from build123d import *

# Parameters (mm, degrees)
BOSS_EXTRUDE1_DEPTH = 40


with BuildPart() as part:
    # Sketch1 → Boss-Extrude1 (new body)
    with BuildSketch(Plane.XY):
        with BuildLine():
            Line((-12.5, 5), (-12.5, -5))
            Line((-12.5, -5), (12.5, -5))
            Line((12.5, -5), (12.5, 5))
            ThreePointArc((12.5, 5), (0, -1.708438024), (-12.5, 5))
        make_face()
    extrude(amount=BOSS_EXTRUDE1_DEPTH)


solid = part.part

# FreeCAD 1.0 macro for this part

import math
import FreeCAD as App
import Part
import Sketcher

V = App.Vector

doc = App.newDocument("Part")
body = doc.addObject("PartDesign::Body", "Body")

sketch1 = doc.addObject("Sketcher::SketchObject", "Sketch")
body.addObject(sketch1)
sketch1.AttachmentSupport = (doc.XY_Plane, [""])
sketch1.MapMode = "FlatFace"
sketch1.addGeometry(Part.LineSegment(V(-12.5, 5, 0), V(-12.5, -5, 0)), False)
sketch1.addGeometry(Part.LineSegment(V(-12.5, -5, 0), V(12.5, -5, 0)), False)
sketch1.addGeometry(Part.LineSegment(V(12.5, -5, 0), V(12.5, 5, 0)), False)
sketch1.addGeometry(Part.ArcOfCircle(Part.Circle(V(0, 13.291562, 0), V(0, 0, 1), 15), math.radians(-146.44269), math.radians(-33.55731)), False)
sketch1.addConstraint(Sketcher.Constraint("Coincident", 0, 2, 1, 1))
sketch1.addConstraint(Sketcher.Constraint("Coincident", 1, 2, 2, 1))
sketch1.addConstraint(Sketcher.Constraint("Coincident", 2, 2, 3, 2))
sketch1.addConstraint(Sketcher.Constraint("Coincident", 3, 1, 0, 1))
sketch1.addConstraint(Sketcher.Constraint("Vertical", 0))
sketch1.addConstraint(Sketcher.Constraint("Horizontal", 1))
sketch1.addConstraint(Sketcher.Constraint("Vertical", 2))
sketch1.addConstraint(Sketcher.Constraint("Symmetric", 0, 2, 2, 2, -1, 1))
sketch1.addConstraint(Sketcher.Constraint("PointOnObject", 3, 3, -2))
sketch1.addConstraint(Sketcher.Constraint("Radius", 3, 15.0))
sketch1.addConstraint(Sketcher.Constraint("DistanceX", 1, 1, 1, 2, 25.0))
sketch1.addConstraint(Sketcher.Constraint("DistanceY", 0, 2, 0, 1, 10.0))
pad1 = doc.addObject("PartDesign::Pad", "Pad")
body.addObject(pad1)
pad1.Profile = sketch1
pad1.Length = 40

doc.recompute()
